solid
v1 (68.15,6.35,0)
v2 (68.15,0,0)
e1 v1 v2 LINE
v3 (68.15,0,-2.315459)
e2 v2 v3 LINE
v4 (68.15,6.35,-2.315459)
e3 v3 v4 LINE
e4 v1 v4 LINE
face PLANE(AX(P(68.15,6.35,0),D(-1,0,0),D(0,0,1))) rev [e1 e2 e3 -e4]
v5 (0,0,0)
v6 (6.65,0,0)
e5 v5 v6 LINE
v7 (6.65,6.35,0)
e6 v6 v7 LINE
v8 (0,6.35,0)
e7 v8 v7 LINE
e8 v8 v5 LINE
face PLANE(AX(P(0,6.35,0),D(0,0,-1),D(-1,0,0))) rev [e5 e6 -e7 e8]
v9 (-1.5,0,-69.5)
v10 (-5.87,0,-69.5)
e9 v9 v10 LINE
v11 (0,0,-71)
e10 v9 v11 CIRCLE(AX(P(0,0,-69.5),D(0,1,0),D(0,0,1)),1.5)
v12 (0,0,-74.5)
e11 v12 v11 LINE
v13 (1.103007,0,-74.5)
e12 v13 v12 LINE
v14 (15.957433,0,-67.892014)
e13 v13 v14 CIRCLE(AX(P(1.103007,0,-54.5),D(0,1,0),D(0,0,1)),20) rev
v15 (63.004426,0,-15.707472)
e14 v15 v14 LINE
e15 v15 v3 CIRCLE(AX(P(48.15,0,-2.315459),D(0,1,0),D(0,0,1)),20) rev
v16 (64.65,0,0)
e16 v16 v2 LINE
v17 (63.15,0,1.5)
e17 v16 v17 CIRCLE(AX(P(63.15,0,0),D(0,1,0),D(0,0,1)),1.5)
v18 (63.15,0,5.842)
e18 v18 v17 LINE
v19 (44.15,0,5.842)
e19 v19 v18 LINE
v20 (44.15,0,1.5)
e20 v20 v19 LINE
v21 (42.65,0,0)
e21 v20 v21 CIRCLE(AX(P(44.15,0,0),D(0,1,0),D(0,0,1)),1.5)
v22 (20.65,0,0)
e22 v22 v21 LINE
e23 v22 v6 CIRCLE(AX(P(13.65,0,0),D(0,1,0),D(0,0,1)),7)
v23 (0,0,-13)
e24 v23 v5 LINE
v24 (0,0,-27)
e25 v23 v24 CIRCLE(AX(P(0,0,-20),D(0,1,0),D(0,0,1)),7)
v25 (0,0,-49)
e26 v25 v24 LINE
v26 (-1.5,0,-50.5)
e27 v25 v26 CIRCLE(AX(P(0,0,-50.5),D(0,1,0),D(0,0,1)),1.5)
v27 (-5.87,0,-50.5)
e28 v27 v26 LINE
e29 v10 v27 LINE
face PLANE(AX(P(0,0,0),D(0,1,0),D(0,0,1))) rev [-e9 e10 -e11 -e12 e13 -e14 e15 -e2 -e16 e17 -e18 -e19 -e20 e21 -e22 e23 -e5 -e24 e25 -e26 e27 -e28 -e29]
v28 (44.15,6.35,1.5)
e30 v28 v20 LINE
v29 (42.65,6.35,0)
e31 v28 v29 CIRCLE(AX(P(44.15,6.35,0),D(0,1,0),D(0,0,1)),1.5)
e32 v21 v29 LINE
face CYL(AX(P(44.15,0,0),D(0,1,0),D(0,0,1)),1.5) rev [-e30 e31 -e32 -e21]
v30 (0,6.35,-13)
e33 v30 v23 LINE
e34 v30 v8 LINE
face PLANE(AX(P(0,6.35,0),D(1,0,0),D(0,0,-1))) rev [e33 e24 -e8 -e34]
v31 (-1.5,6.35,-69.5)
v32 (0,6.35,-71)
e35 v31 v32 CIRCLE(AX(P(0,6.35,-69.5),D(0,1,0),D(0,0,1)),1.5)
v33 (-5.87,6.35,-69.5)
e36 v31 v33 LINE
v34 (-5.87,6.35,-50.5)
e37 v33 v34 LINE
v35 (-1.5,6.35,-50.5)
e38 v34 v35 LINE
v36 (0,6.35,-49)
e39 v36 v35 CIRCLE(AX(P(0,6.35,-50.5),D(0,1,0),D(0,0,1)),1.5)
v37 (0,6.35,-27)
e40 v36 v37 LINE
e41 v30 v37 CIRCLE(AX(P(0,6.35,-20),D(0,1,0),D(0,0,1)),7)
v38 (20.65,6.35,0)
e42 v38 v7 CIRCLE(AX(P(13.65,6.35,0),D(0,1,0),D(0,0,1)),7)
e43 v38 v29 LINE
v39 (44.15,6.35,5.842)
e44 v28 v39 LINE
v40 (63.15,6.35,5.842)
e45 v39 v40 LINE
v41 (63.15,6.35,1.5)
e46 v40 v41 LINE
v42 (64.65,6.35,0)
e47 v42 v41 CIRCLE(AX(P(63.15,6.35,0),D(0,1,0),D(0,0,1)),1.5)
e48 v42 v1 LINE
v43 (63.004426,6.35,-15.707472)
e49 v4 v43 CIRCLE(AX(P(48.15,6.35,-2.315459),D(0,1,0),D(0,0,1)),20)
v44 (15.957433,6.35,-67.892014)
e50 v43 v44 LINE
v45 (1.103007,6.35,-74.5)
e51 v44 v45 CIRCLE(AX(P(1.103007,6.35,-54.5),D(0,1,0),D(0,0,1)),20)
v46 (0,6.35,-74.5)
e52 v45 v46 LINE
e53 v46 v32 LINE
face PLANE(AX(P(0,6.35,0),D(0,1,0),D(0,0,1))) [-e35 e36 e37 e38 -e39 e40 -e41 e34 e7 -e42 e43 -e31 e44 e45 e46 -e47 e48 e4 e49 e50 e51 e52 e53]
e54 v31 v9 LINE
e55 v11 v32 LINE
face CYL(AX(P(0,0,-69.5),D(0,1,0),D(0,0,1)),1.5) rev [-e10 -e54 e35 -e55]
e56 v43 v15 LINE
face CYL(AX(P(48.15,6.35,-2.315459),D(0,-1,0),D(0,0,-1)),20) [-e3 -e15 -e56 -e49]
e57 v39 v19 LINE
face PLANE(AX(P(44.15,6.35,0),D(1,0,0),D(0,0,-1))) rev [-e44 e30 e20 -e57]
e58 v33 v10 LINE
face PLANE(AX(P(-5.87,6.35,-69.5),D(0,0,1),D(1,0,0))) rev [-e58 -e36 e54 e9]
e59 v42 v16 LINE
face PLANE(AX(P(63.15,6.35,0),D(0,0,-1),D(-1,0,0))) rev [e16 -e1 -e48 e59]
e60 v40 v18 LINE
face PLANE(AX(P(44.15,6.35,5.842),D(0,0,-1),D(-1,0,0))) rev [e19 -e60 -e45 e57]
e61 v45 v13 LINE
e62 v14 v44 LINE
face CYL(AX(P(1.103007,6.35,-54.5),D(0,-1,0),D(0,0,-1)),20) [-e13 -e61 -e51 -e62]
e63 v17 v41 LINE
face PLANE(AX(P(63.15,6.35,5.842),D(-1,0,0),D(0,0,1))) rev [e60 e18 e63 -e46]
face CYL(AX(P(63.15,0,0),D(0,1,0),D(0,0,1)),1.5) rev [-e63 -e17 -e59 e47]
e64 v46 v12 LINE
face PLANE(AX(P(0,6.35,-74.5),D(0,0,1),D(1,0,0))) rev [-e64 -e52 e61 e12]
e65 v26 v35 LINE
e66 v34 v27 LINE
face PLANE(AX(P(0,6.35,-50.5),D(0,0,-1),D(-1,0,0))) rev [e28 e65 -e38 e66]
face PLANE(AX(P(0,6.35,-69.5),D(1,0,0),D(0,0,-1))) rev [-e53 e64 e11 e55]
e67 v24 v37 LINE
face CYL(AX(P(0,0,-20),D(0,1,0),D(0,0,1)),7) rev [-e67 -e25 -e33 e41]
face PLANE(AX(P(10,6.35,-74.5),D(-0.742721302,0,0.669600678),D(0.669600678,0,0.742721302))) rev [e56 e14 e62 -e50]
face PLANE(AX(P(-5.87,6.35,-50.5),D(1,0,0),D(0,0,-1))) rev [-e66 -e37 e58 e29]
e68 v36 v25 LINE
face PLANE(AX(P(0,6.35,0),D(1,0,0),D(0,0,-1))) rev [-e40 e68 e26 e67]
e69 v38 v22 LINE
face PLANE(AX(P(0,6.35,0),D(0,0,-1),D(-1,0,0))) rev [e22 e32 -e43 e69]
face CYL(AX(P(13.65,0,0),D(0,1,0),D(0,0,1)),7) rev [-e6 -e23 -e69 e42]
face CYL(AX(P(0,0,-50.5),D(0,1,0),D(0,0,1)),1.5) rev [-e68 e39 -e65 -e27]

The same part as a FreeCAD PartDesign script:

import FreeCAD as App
import Part
import Sketcher
Q = App.Units.Quantity


def edges_at(feature, points):
    """Names of the edges that pass closest to the given points."""
    edges = feature.Shape.Edges
    near = lambda p: min(range(len(edges)), key=lambda i: edges[i].distToShape(Part.Vertex(*p))[0])
    return sorted({f"Edge{near(p) + 1}" for p in points})


def add_polygon(sketch, points):
    """Adds a closed chain of lines whose ends are joined by coincident constraints."""
    first, n = sketch.GeometryCount, len(points)
    for a, b in zip(points, points[1:] + points[:1]):
        sketch.addGeometry(Part.LineSegment(App.Vector(*a, 0), App.Vector(*b, 0)), False)
    for i in range(n):
        sketch.addConstraint(Sketcher.Constraint("Coincident", first + i, 2, first + (i + 1) % n, 1))

doc = App.newDocument("Part")
body = doc.addObject("PartDesign::Body", "Body")

# Sketch on XZ plane
sketch1 = doc.addObject("Sketcher::SketchObject", "Sketch")
body.addObject(sketch1)
sketch1.AttachmentSupport = (doc.XZ_Plane, [""])
sketch1.MapMode = "FlatFace"
add_polygon(sketch1, [(0, 0), (44, 0), (44, 6), (63, 6), (63, 0), (68, 0), (68, -10), (10, -74), (0, -74), (0, -70), (-6, -70), (-6, -50), (0, -50)])  # lines 0-12
sketch1.addConstraint([
    Sketcher.Constraint("Horizontal", 0),
    Sketcher.Constraint("Vertical", 1),
    Sketcher.Constraint("Horizontal", 2),
    Sketcher.Constraint("Vertical", 3),
    Sketcher.Constraint("Horizontal", 4),
    Sketcher.Constraint("Vertical", 5),
    Sketcher.Constraint("Horizontal", 7),
    Sketcher.Constraint("Vertical", 8),
    Sketcher.Constraint("Horizontal", 9),
    Sketcher.Constraint("Vertical", 10),
    Sketcher.Constraint("Horizontal", 11),
    Sketcher.Constraint("Vertical", 12),
    Sketcher.Constraint("Coincident", 12, 2, -1, 1),
    Sketcher.Constraint("PointOnObject", 3, 2, -1),
    Sketcher.Constraint("PointOnObject", 7, 2, -2),
    Sketcher.Constraint("Equal", 7, 5),
    Sketcher.Constraint("Equal", 4, 8),
    Sketcher.Constraint("Equal", 2, 10),
    Sketcher.Constraint("DistanceX", 2, 1, 2, 2, Q("19 mm")),
    Sketcher.Constraint("DistanceX", 4, 1, 4, 2, Q("5 mm")),
    Sketcher.Constraint("DistanceX", 7, 2, 7, 1, Q("10 mm")),
    Sketcher.Constraint("DistanceY", 12, 1, 12, 2, Q("50.5 mm")),
    Sketcher.Constraint("DistanceX", 0, 1, 0, 2, Q("44.15 mm")),
    Sketcher.Constraint("DistanceX", 9, 2, 9, 1, Q("5.87 mm")),
    Sketcher.Constraint("DistanceY", 1, 1, 1, 2, Q("5.842 mm")),
])
pad1 = doc.addObject("PartDesign::Pad", "Pad")
body.addObject(pad1)
pad1.Profile = sketch1
pad1.Length = 6.35
pad1.Reversed = True

# Sketch on XZ plane
sketch2 = doc.addObject("Sketcher::SketchObject", "Sketch001")
body.addObject(sketch2)
sketch2.AttachmentSupport = (doc.XZ_Plane, [""])
sketch2.MapMode = "FlatFace"
sketch2.AttachmentOffset = App.Placement(App.Vector(0, 0, -6.35), App.Rotation())
sketch2.addGeometry([
    Part.Circle(App.Vector(0, -69.5, 0), App.Vector(0, 0, 1), 1.5),  # 0
    Part.Circle(App.Vector(0, -50.5, 0), App.Vector(0, 0, 1), 1.5),  # 1
    Part.Circle(App.Vector(44.1, 0, 0), App.Vector(0, 0, 1), 1.5),  # 2
    Part.Circle(App.Vector(63.1, 0, 0), App.Vector(0, 0, 1), 1.5),  # 3
    Part.Circle(App.Vector(0, -20, 0), App.Vector(0, 0, 1), 7),  # 4
    Part.Circle(App.Vector(13.7, 0, 0), App.Vector(0, 0, 1), 7),  # 5
], False)
sketch2.addConstraint([
    Sketcher.Constraint("Equal", 0, 1),
    Sketcher.Constraint("Equal", 1, 2),
    Sketcher.Constraint("Equal", 2, 3),
    Sketcher.Constraint("Equal", 4, 5),
    Sketcher.Constraint("PointOnObject", 0, 3, -2),
    Sketcher.Constraint("PointOnObject", 1, 3, -2),
    Sketcher.Constraint("PointOnObject", 2, 3, -1),
    Sketcher.Constraint("PointOnObject", 3, 3, -1),
    Sketcher.Constraint("PointOnObject", 4, 3, -2),
    Sketcher.Constraint("PointOnObject", 5, 3, -1),
    Sketcher.Constraint("Diameter", 0, Q("3 mm")),
    Sketcher.Constraint("Diameter", 4, Q("14 mm")),
    Sketcher.Constraint("DistanceY", 4, 3, -1, 1, Q("20 mm")),
    Sketcher.Constraint("DistanceY", 0, 3, 1, 3, Q("19 mm")),
    Sketcher.Constraint("DistanceX", 2, 3, 3, 3, Q("19 mm")),
    Sketcher.Constraint("DistanceY", 0, 3, -1, 1, Q("69.5 mm")),
    Sketcher.Constraint("DistanceX", 5, 3, 2, 3, Q("30.5 mm")),
    Sketcher.Constraint("DistanceX", -1, 1, 2, 3, Q("44.15 mm")),
])
pocket1 = doc.addObject("PartDesign::Pocket", "Pocket")
body.addObject(pocket1)
pocket1.Profile = sketch2
pocket1.Type = "ThroughAll"
pocket1.Reversed = True
doc.recompute()

fillet = doc.addObject("PartDesign::Fillet", "Fillet")
body.addObject(fillet)
fillet.Base = (pocket1, edges_at(pocket1, [(10, 3.175, -74.5), (68.15, 3.175, -10)]))
fillet.Radius = 20

doc.recompute()
